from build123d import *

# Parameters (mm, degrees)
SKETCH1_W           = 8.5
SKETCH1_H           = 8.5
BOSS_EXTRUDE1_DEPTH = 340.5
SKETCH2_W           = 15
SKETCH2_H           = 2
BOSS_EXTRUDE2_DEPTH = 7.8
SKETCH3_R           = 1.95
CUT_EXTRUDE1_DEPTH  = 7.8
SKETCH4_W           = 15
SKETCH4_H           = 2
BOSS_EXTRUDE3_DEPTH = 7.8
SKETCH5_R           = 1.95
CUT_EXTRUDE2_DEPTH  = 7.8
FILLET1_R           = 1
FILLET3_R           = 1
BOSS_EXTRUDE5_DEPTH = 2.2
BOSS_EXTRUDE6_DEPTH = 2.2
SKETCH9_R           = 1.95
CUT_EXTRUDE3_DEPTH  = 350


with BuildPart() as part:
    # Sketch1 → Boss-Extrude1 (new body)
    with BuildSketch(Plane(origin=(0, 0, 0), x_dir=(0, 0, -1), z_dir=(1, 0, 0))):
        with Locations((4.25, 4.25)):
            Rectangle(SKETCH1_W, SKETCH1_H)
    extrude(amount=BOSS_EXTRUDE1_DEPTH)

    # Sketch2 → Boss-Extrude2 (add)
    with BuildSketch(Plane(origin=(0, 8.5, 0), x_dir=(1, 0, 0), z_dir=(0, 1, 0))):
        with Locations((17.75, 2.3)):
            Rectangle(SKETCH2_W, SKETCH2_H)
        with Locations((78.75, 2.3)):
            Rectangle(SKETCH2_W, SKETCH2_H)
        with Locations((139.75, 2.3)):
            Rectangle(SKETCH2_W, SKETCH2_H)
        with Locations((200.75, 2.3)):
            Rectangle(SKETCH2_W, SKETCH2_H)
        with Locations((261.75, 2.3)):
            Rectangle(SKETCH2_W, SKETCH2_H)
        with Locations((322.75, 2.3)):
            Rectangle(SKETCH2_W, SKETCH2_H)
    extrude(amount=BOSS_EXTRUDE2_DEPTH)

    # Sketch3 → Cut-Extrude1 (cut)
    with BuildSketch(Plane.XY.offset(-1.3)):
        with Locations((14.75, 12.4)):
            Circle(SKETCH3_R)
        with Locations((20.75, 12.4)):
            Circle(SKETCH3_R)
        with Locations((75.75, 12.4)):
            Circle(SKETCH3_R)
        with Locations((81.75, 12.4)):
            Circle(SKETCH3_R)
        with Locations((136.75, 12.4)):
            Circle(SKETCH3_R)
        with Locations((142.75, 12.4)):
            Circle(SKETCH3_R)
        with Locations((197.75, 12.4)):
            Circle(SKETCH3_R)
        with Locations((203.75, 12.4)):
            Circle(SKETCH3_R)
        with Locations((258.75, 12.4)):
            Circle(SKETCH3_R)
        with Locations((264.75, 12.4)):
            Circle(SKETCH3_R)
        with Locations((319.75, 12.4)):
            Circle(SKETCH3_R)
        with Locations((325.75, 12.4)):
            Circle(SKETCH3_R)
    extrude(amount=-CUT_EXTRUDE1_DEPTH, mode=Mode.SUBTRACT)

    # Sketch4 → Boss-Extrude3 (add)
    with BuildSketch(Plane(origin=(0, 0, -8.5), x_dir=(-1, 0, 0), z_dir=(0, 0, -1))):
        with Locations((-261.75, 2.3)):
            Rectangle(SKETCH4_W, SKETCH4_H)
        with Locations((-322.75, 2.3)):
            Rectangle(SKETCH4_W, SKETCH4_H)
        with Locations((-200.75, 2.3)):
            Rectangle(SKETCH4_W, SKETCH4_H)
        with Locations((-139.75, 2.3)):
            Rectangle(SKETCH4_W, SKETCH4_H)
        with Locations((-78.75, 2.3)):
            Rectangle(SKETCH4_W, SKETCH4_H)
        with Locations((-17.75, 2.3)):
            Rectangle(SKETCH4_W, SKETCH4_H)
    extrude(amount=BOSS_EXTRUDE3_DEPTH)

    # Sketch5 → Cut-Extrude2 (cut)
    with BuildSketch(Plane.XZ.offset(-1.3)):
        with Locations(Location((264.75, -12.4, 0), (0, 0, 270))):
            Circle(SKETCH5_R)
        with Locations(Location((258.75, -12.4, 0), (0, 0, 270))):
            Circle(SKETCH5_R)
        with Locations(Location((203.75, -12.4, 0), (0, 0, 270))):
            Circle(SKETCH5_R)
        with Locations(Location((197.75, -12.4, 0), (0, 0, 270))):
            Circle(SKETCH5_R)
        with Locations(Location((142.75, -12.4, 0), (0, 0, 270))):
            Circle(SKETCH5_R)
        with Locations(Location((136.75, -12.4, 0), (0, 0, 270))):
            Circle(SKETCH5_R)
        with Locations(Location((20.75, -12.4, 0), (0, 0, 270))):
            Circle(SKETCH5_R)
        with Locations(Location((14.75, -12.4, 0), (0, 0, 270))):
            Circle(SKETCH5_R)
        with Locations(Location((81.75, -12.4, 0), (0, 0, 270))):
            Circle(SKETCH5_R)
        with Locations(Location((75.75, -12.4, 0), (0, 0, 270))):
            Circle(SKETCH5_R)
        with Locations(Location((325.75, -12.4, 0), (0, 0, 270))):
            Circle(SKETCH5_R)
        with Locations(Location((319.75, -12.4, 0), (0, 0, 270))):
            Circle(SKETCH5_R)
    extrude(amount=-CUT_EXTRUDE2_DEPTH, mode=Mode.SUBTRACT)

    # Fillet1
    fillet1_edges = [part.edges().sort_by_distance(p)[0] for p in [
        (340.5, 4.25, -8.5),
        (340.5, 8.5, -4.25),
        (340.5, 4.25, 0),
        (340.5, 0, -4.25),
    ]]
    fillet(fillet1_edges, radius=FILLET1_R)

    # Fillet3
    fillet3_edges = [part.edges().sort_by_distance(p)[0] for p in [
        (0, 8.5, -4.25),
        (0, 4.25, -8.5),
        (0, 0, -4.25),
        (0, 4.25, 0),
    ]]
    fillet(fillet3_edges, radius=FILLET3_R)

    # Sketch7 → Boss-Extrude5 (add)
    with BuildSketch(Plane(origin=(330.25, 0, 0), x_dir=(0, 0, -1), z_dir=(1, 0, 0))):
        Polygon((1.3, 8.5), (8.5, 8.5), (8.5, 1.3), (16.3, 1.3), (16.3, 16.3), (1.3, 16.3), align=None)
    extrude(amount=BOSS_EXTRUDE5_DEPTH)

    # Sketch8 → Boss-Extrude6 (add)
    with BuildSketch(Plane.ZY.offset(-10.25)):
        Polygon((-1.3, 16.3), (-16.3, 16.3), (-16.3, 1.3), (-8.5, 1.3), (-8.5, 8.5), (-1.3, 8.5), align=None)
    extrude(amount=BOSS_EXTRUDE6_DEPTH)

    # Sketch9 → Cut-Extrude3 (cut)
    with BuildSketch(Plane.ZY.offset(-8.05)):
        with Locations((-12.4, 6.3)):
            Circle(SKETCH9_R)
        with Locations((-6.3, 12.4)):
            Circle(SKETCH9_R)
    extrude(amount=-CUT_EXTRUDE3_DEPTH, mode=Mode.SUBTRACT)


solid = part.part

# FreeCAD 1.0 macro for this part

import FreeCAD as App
import Part
import Sketcher
from FreeCAD import Vector


def edges_at(feature, points):
    """Names of the edges that pass closest to the given points."""
    edges = feature.Shape.Edges
    near = lambda p: min(range(len(edges)), key=lambda i: edges[i].distToShape(Part.Vertex(*p))[0])
    return sorted({f"Edge{near(p) + 1}" for p in points})


def add_polygon(sketch, points):
    """Adds a closed chain of lines whose ends are joined by coincident constraints."""
    first, n = sketch.GeometryCount, len(points)
    for a, b in zip(points, points[1:] + points[:1]):
        sketch.addGeometry(Part.LineSegment(App.Vector(*a, 0), App.Vector(*b, 0)), False)
    for i in range(n):
        sketch.addConstraint(Sketcher.Constraint("Coincident", first + i, 2, first + (i + 1) % n, 1))

doc = App.newDocument("Part")
body = doc.addObject("PartDesign::Body", "Body")

# Sketch on YZ plane
sketch1 = body.newObject("Sketcher::SketchObject", "Sketch")
sketch1.AttachmentSupport = (doc.getObject("YZ_Plane"), [""])
sketch1.MapMode = "FlatFace"
add_polygon(sketch1, [(8, 0), (0, 0), (0, -8), (8, -8)])  # lines 0-3
sketch1.addConstraint([
    Sketcher.Constraint("Horizontal", 0),
    Sketcher.Constraint("Vertical", 1),
    Sketcher.Constraint("Horizontal", 2),
    Sketcher.Constraint("Vertical", 3),
    Sketcher.Constraint("Coincident", 0, 2, -1, 1),
    Sketcher.Constraint("Equal", 2, 1),
    Sketcher.Constraint("DistanceX", 0, 2, 0, 1, 8.5),
])
pad1 = body.newObject("PartDesign::Pad", "Pad")
pad1.Profile = sketch1
pad1.Length = 340.5

# Sketch on XZ plane
sketch2 = body.newObject("Sketcher::SketchObject", "Sketch001")
sketch2.AttachmentSupport = (doc.getObject("XZ_Plane"), [""])
sketch2.MapMode = "FlatFace"
sketch2.AttachmentOffset = App.Placement(Vector(0, 0, -8.5), App.Rotation())
add_polygon(sketch2, [(10.2, -3.3), (10.2, -1.3), (25.2, -1.3), (25.2, -3.3)])  # lines 0-3
add_polygon(sketch2, [(71.2, -3.3), (71.2, -1.3), (86.2, -1.3), (86.2, -3.3)])  # lines 4-7
add_polygon(sketch2, [(132.2, -3.3), (132.2, -1.3), (147.2, -1.3), (147.2, -3.3)])  # lines 8-11
add_polygon(sketch2, [(193.2, -3.3), (193.2, -1.3), (208.2, -1.3), (208.2, -3.3)])  # lines 12-15
add_polygon(sketch2, [(254.2, -3.3), (254.2, -1.3), (269.2, -1.3), (269.2, -3.3)])  # lines 16-19
add_polygon(sketch2, [(315.2, -3.3), (315.2, -1.3), (330.2, -1.3), (330.2, -3.3)])  # lines 20-23
sketch2.addConstraint([
    Sketcher.Constraint("Vertical", 0),
    Sketcher.Constraint("Horizontal", 1),
    Sketcher.Constraint("Vertical", 2),
    Sketcher.Constraint("Horizontal", 3),
    Sketcher.Constraint("Vertical", 4),
    Sketcher.Constraint("Horizontal", 5),
    Sketcher.Constraint("Vertical", 6),
    Sketcher.Constraint("Horizontal", 7),
    Sketcher.Constraint("Vertical", 8),
    Sketcher.Constraint("Horizontal", 9),
    Sketcher.Constraint("Vertical", 10),
    Sketcher.Constraint("Horizontal", 11),
    Sketcher.Constraint("Vertical", 12),
    Sketcher.Constraint("Horizontal", 13),
    Sketcher.Constraint("Vertical", 14),
    Sketcher.Constraint("Horizontal", 15),
    Sketcher.Constraint("Vertical", 16),
    Sketcher.Constraint("Horizontal", 17),
    Sketcher.Constraint("Vertical", 18),
    Sketcher.Constraint("Horizontal", 19),
    Sketcher.Constraint("Vertical", 20),
    Sketcher.Constraint("Horizontal", 21),
    Sketcher.Constraint("Vertical", 22),
    Sketcher.Constraint("Horizontal", 23),
    Sketcher.Constraint("Horizontal", 1, 2, 4, 2),
    Sketcher.Constraint("Horizontal", 3, 2, 6, 2),
    Sketcher.Constraint("Horizontal", 5, 2, 8, 2),
    Sketcher.Constraint("Horizontal", 7, 2, 10, 2),
    Sketcher.Constraint("Horizontal", 9, 2, 12, 2),
    Sketcher.Constraint("Horizontal", 11, 2, 14, 2),
    Sketcher.Constraint("Horizontal", 13, 2, 16, 2),
    Sketcher.Constraint("Horizontal", 15, 2, 18, 2),
    Sketcher.Constraint("Horizontal", 17, 2, 20, 2),
    Sketcher.Constraint("Horizontal", 19, 2, 22, 2),
    Sketcher.Constraint("Equal", 3, 5),
    Sketcher.Constraint("Equal", 7, 9),
    Sketcher.Constraint("Equal", 11, 13),
    Sketcher.Constraint("Equal", 15, 17),
    Sketcher.Constraint("Equal", 19, 21),
    Sketcher.Constraint("DistanceX", 1, 1, 1, 2, 15.0),
    Sketcher.Constraint("DistanceY", 0, 1, 0, 2, 2.0),
    Sketcher.Constraint("DistanceX", 1, 2, 4, 2, 46.0),
    Sketcher.Constraint("DistanceX", 5, 2, 8, 2, 46.0),
    Sketcher.Constraint("DistanceX", 9, 2, 12, 2, 46.0),
    Sketcher.Constraint("DistanceX", 13, 2, 16, 2, 46.0),
    Sketcher.Constraint("DistanceX", 17, 2, 20, 2, 46.0),
    Sketcher.Constraint("DistanceY", 0, 2, -1, 1, 1.3),
    Sketcher.Constraint("DistanceX", -1, 1, 0, 2, 10.25),
])
pad2 = body.newObject("PartDesign::Pad", "Pad001")
pad2.Profile = sketch2
pad2.Length = 7.8
pad2.Reversed = True

# Sketch on XY plane
sketch3 = body.newObject("Sketcher::SketchObject", "Sketch002")
sketch3.AttachmentSupport = (doc.getObject("XY_Plane"), [""])
sketch3.MapMode = "FlatFace"
sketch3.AttachmentOffset = App.Placement(Vector(0, 0, -1.3), App.Rotation())
sketch3.addGeometry([
    Part.Circle(Vector(14.8, 12.4, 0), Vector(0, 0, 1), 1.9),  # 0
    Part.Circle(Vector(20.8, 12.4, 0), Vector(0, 0, 1), 1.9),  # 1
    Part.Circle(Vector(75.8, 12.4, 0), Vector(0, 0, 1), 1.9),  # 2
    Part.Circle(Vector(81.8, 12.4, 0), Vector(0, 0, 1), 1.9),  # 3
    Part.Circle(Vector(136.8, 12.4, 0), Vector(0, 0, 1), 1.9),  # 4
    Part.Circle(Vector(142.8, 12.4, 0), Vector(0, 0, 1), 1.9),  # 5
    Part.Circle(Vector(197.8, 12.4, 0), Vector(0, 0, 1), 1.9),  # 6
    Part.Circle(Vector(203.8, 12.4, 0), Vector(0, 0, 1), 1.9),  # 7
    Part.Circle(Vector(258.8, 12.4, 0), Vector(0, 0, 1), 1.9),  # 8
    Part.Circle(Vector(264.8, 12.4, 0), Vector(0, 0, 1), 1.9),  # 9
    Part.Circle(Vector(319.8, 12.4, 0), Vector(0, 0, 1), 1.9),  # 10
    Part.Circle(Vector(325.8, 12.4, 0), Vector(0, 0, 1), 1.9),  # 11
], False)
sketch3.addConstraint([
    Sketcher.Constraint("Equal", 0, 1),
    Sketcher.Constraint("Equal", 1, 2),
    Sketcher.Constraint("Equal", 2, 3),
    Sketcher.Constraint("Equal", 3, 4),
    Sketcher.Constraint("Equal", 4, 5),
    Sketcher.Constraint("Equal", 5, 6),
    Sketcher.Constraint("Equal", 6, 7),
    Sketcher.Constraint("Equal", 7, 8),
    Sketcher.Constraint("Equal", 8, 9),
    Sketcher.Constraint("Equal", 9, 10),
    Sketcher.Constraint("Equal", 10, 11),
    Sketcher.Constraint("Horizontal", 0, 3, 1, 3),
    Sketcher.Constraint("Horizontal", 1, 3, 2, 3),
    Sketcher.Constraint("Horizontal", 2, 3, 3, 3),
    Sketcher.Constraint("Horizontal", 3, 3, 4, 3),
    Sketcher.Constraint("Horizontal", 4, 3, 5, 3),
    Sketcher.Constraint("Horizontal", 5, 3, 6, 3),
    Sketcher.Constraint("Horizontal", 6, 3, 7, 3),
    Sketcher.Constraint("Horizontal", 7, 3, 8, 3),
    Sketcher.Constraint("Horizontal", 8, 3, 9, 3),
    Sketcher.Constraint("Horizontal", 9, 3, 10, 3),
    Sketcher.Constraint("Horizontal", 10, 3, 11, 3),
    Sketcher.Constraint("Diameter", 0, 3.9),
    Sketcher.Constraint("DistanceX", 0, 3, 1, 3, 6.0),
    Sketcher.Constraint("DistanceX", 1, 3, 2, 3, 55.0),
    Sketcher.Constraint("DistanceX", 2, 3, 3, 3, 6.0),
    Sketcher.Constraint("DistanceX", 3, 3, 4, 3, 55.0),
    Sketcher.Constraint("DistanceX", 4, 3, 5, 3, 6.0),
    Sketcher.Constraint("DistanceX", 5, 3, 6, 3, 55.0),
    Sketcher.Constraint("DistanceX", 6, 3, 7, 3, 6.0),
    Sketcher.Constraint("DistanceX", 7, 3, 8, 3, 55.0),
    Sketcher.Constraint("DistanceX", 8, 3, 9, 3, 6.0),
    Sketcher.Constraint("DistanceX", 9, 3, 10, 3, 55.0),
    Sketcher.Constraint("DistanceX", 10, 3, 11, 3, 6.0),
    Sketcher.Constraint("DistanceY", -1, 1, 0, 3, 12.4),
    Sketcher.Constraint("DistanceX", -1, 1, 0, 3, 14.75),
])
pocket1 = body.newObject("PartDesign::Pocket", "Pocket")
pocket1.Profile = sketch3
pocket1.Length = 7.8

# Sketch on XY plane
sketch4 = body.newObject("Sketcher::SketchObject", "Sketch003")
sketch4.AttachmentSupport = (doc.getObject("XY_Plane"), [""])
sketch4.MapMode = "FlatFace"
sketch4.AttachmentOffset = App.Placement(Vector(0, 0, -8.5), App.Rotation())
add_polygon(sketch4, [(269.2, 3.3), (269.2, 1.3), (254.2, 1.3), (254.2, 3.3)])  # lines 0-3
add_polygon(sketch4, [(330.2, 3.3), (330.2, 1.3), (315.2, 1.3), (315.2, 3.3)])  # lines 4-7
add_polygon(sketch4, [(208.2, 3.3), (208.2, 1.3), (193.2, 1.3), (193.2, 3.3)])  # lines 8-11
add_polygon(sketch4, [(147.2, 3.3), (147.2, 1.3), (132.2, 1.3), (132.2, 3.3)])  # lines 12-15
add_polygon(sketch4, [(86.2, 3.3), (86.2, 1.3), (71.2, 1.3), (71.2, 3.3)])  # lines 16-19
add_polygon(sketch4, [(25.2, 3.3), (25.2, 1.3), (10.2, 1.3), (10.2, 3.3)])  # lines 20-23
sketch4.addConstraint([
    Sketcher.Constraint("Vertical", 0),
    Sketcher.Constraint("Horizontal", 1),
    Sketcher.Constraint("Vertical", 2),
    Sketcher.Constraint("Horizontal", 3),
    Sketcher.Constraint("Vertical", 4),
    Sketcher.Constraint("Horizontal", 5),
    Sketcher.Constraint("Vertical", 6),
    Sketcher.Constraint("Horizontal", 7),
    Sketcher.Constraint("Vertical", 8),
    Sketcher.Constraint("Horizontal", 9),
    Sketcher.Constraint("Vertical", 10),
    Sketcher.Constraint("Horizontal", 11),
    Sketcher.Constraint("Vertical", 12),
    Sketcher.Constraint("Horizontal", 13),
    Sketcher.Constraint("Vertical", 14),
    Sketcher.Constraint("Horizontal", 15),
    Sketcher.Constraint("Vertical", 16),
    Sketcher.Constraint("Horizontal", 17),
    Sketcher.Constraint("Vertical", 18),
    Sketcher.Constraint("Horizontal", 19),
    Sketcher.Constraint("Vertical", 20),
    Sketcher.Constraint("Horizontal", 21),
    Sketcher.Constraint("Vertical", 22),
    Sketcher.Constraint("Horizontal", 23),
    Sketcher.Constraint("Horizontal", 1, 2, 4, 2),
    Sketcher.Constraint("Horizontal", 3, 2, 6, 2),
    Sketcher.Constraint("Horizontal", 5, 2, 8, 2),
    Sketcher.Constraint("Horizontal", 7, 2, 10, 2),
    Sketcher.Constraint("Horizontal", 9, 2, 12, 2),
    Sketcher.Constraint("Horizontal", 11, 2, 14, 2),
    Sketcher.Constraint("Horizontal", 13, 2, 16, 2),
    Sketcher.Constraint("Horizontal", 15, 2, 18, 2),
    Sketcher.Constraint("Horizontal", 17, 2, 20, 2),
    Sketcher.Constraint("Horizontal", 19, 2, 22, 2),
    Sketcher.Constraint("Equal", 3, 5),
    Sketcher.Constraint("Equal", 7, 9),
    Sketcher.Constraint("Equal", 11, 13),
    Sketcher.Constraint("Equal", 15, 17),
    Sketcher.Constraint("Equal", 19, 21),
    Sketcher.Constraint("DistanceX", 1, 2, 1, 1, 15.0),
    Sketcher.Constraint("DistanceY", 0, 2, 0, 1, 2.0),
    Sketcher.Constraint("DistanceX", 0, 2, 4, 2, 61.0),
    Sketcher.Constraint("DistanceX", 8, 2, 1, 2, 46.0),
    Sketcher.Constraint("DistanceX", 12, 2, 9, 2, 46.0),
    Sketcher.Constraint("DistanceX", 16, 2, 13, 2, 46.0),
    Sketcher.Constraint("DistanceX", 20, 2, 17, 2, 46.0),
    Sketcher.Constraint("DistanceY", -1, 1, 0, 2, 1.3),
    Sketcher.Constraint("DistanceX", -1, 1, 0, 2, 269.25),
])
pad3 = body.newObject("PartDesign::Pad", "Pad002")
pad3.Profile = sketch4
pad3.Length = 7.8
pad3.Reversed = True

# Sketch on XZ plane
sketch5 = body.newObject("Sketcher::SketchObject", "Sketch004")
sketch5.AttachmentSupport = (doc.getObject("XZ_Plane"), [""])
sketch5.MapMode = "FlatFace"
sketch5.AttachmentOffset = App.Placement(Vector(0, 0, -1.3), App.Rotation())
sketch5.addGeometry([
    Part.Circle(Vector(264.8, -12.4, 0), Vector(0, 0, 1), 1.9),  # 0
    Part.Circle(Vector(258.8, -12.4, 0), Vector(0, 0, 1), 1.9),  # 1
    Part.Circle(Vector(203.8, -12.4, 0), Vector(0, 0, 1), 1.9),  # 2
    Part.Circle(Vector(197.8, -12.4, 0), Vector(0, 0, 1), 1.9),  # 3
    Part.Circle(Vector(142.8, -12.4, 0), Vector(0, 0, 1), 1.9),  # 4
    Part.Circle(Vector(136.8, -12.4, 0), Vector(0, 0, 1), 1.9),  # 5
    Part.Circle(Vector(20.8, -12.4, 0), Vector(0, 0, 1), 1.9),  # 6
    Part.Circle(Vector(14.8, -12.4, 0), Vector(0, 0, 1), 1.9),  # 7
    Part.Circle(Vector(81.8, -12.4, 0), Vector(0, 0, 1), 1.9),  # 8
    Part.Circle(Vector(75.8, -12.4, 0), Vector(0, 0, 1), 1.9),  # 9
    Part.Circle(Vector(325.8, -12.4, 0), Vector(0, 0, 1), 1.9),  # 10
    Part.Circle(Vector(319.8, -12.4, 0), Vector(0, 0, 1), 1.9),  # 11
], False)
sketch5.addConstraint([
    Sketcher.Constraint("Equal", 0, 1),
    Sketcher.Constraint("Equal", 1, 2),
    Sketcher.Constraint("Equal", 2, 3),
    Sketcher.Constraint("Equal", 3, 4),
    Sketcher.Constraint("Equal", 4, 5),
    Sketcher.Constraint("Equal", 5, 6),
    Sketcher.Constraint("Equal", 6, 7),
    Sketcher.Constraint("Equal", 7, 8),
    Sketcher.Constraint("Equal", 8, 9),
    Sketcher.Constraint("Equal", 9, 10),
    Sketcher.Constraint("Equal", 10, 11),
    Sketcher.Constraint("Horizontal", 0, 3, 1, 3),
    Sketcher.Constraint("Horizontal", 1, 3, 2, 3),
    Sketcher.Constraint("Horizontal", 2, 3, 3, 3),
    Sketcher.Constraint("Horizontal", 3, 3, 4, 3),
    Sketcher.Constraint("Horizontal", 4, 3, 5, 3),
    Sketcher.Constraint("Horizontal", 5, 3, 6, 3),
    Sketcher.Constraint("Horizontal", 6, 3, 7, 3),
    Sketcher.Constraint("Horizontal", 7, 3, 8, 3),
    Sketcher.Constraint("Horizontal", 8, 3, 9, 3),
    Sketcher.Constraint("Horizontal", 9, 3, 10, 3),
    Sketcher.Constraint("Horizontal", 10, 3, 11, 3),
    Sketcher.Constraint("Diameter", 0, 3.9),
    Sketcher.Constraint("DistanceX", 1, 3, 0, 3, 6.0),
    Sketcher.Constraint("DistanceX", 2, 3, 1, 3, 55.0),
    Sketcher.Constraint("DistanceX", 3, 3, 2, 3, 6.0),
    Sketcher.Constraint("DistanceX", 4, 3, 3, 3, 55.0),
    Sketcher.Constraint("DistanceX", 5, 3, 4, 3, 6.0),
    Sketcher.Constraint("DistanceX", 6, 3, 5, 3, 116.0),
    Sketcher.Constraint("DistanceX", 7, 3, 6, 3, 6.0),
    Sketcher.Constraint("DistanceX", 8, 3, 5, 3, 55.0),
    Sketcher.Constraint("DistanceX", 9, 3, 8, 3, 6.0),
    Sketcher.Constraint("DistanceX", 0, 3, 10, 3, 61.0),
    Sketcher.Constraint("DistanceX", 11, 3, 10, 3, 6.0),
    Sketcher.Constraint("DistanceY", 0, 3, -1, 1, 12.4),
    Sketcher.Constraint("DistanceX", -1, 1, 0, 3, 264.75),
])
pocket2 = body.newObject("PartDesign::Pocket", "Pocket001")
pocket2.Profile = sketch5
pocket2.Length = 7.8
doc.recompute()

fillet = body.newObject("PartDesign::Fillet", "Fillet")
fillet.Base = (pocket2, edges_at(pocket2, [
    (340.5, 4.25, -8.5),
    (340.5, 8.5, -4.25),
    (340.5, 4.25, 0),
    (340.5, 0, -4.25),
]))
fillet.Radius = 1
doc.recompute()

fillet2 = body.newObject("PartDesign::Fillet", "Fillet001")
fillet2.Base = (fillet, edges_at(fillet, [
    (0, 8.5, -4.25),
    (0, 4.25, -8.5),
    (0, 0, -4.25),
    (0, 4.25, 0),
]))
fillet2.Radius = 1

# Sketch on YZ plane
sketch6 = body.newObject("Sketcher::SketchObject", "Sketch005")
sketch6.AttachmentSupport = (doc.getObject("YZ_Plane"), [""])
sketch6.MapMode = "FlatFace"
sketch6.AttachmentOffset = App.Placement(Vector(0, 0, 330.25), App.Rotation())
add_polygon(sketch6, [(8, -1), (8, -8), (1, -8), (1, -16), (16, -16), (16, -1)])  # lines 0-5
sketch6.addConstraint([
    Sketcher.Constraint("Vertical", 0),
    Sketcher.Constraint("Horizontal", 1),
    Sketcher.Constraint("Vertical", 2),
    Sketcher.Constraint("Horizontal", 3),
    Sketcher.Constraint("Vertical", 4),
    Sketcher.Constraint("Horizontal", 5),
    Sketcher.Constraint("Equal", 1, 0),
    Sketcher.Constraint("Equal", 5, 2),
    Sketcher.Constraint("DistanceX", 3, 1, 3, 2, 15.0),
    Sketcher.Constraint("DistanceX", 1, 2, 1, 1, 7.2),
    Sketcher.Constraint("DistanceX", -1, 1, 0, 2, 8.5),
    Sketcher.Constraint("DistanceY", 0, 2, -1, 1, 8.5),
])
pad4 = body.newObject("PartDesign::Pad", "Pad003")
pad4.Profile = sketch6
pad4.Length = 2.2

# Sketch on YZ plane
sketch7 = body.newObject("Sketcher::SketchObject", "Sketch006")
sketch7.AttachmentSupport = (doc.getObject("YZ_Plane"), [""])
sketch7.MapMode = "FlatFace"
sketch7.AttachmentOffset = App.Placement(Vector(0, 0, 10.25), App.Rotation())
add_polygon(sketch7, [(16, -1), (16, -16), (1, -16), (1, -8), (8, -8), (8, -1)])  # lines 0-5
sketch7.addConstraint([
    Sketcher.Constraint("Vertical", 0),
    Sketcher.Constraint("Horizontal", 1),
    Sketcher.Constraint("Vertical", 2),
    Sketcher.Constraint("Horizontal", 3),
    Sketcher.Constraint("Vertical", 4),
    Sketcher.Constraint("Horizontal", 5),
    Sketcher.Constraint("Equal", 1, 0),
    Sketcher.Constraint("Equal", 5, 2),
    Sketcher.Constraint("DistanceX", 1, 2, 1, 1, 15.0),
    Sketcher.Constraint("DistanceX", 3, 1, 3, 2, 7.2),
    Sketcher.Constraint("DistanceX", -1, 1, 0, 2, 16.3),
    Sketcher.Constraint("DistanceY", 0, 2, -1, 1, 16.3),
])
pad5 = body.newObject("PartDesign::Pad", "Pad004")
pad5.Profile = sketch7
pad5.Length = 2.2
pad5.Reversed = True

# Sketch on YZ plane
sketch8 = body.newObject("Sketcher::SketchObject", "Sketch007")
sketch8.AttachmentSupport = (doc.getObject("YZ_Plane"), [""])
sketch8.MapMode = "FlatFace"
sketch8.AttachmentOffset = App.Placement(Vector(0, 0, 8.05), App.Rotation())
sketch8.addGeometry([
    Part.Circle(Vector(6.3, -12.4, 0), Vector(0, 0, 1), 1.9),
    Part.Circle(Vector(12.4, -6.3, 0), Vector(0, 0, 1), 1.9),
], False)
sketch8.addConstraint([
    Sketcher.Constraint("Equal", 0, 1),
    Sketcher.Constraint("Diameter", 0, 3.9),
    Sketcher.Constraint("DistanceX", -1, 1, 0, 3, 6.3),
    Sketcher.Constraint("DistanceY", 0, 3, -1, 1, 12.4),
    Sketcher.Constraint("DistanceX", -1, 1, 1, 3, 12.4),
    Sketcher.Constraint("DistanceY", 1, 3, -1, 1, 6.3),
])
pocket3 = body.newObject("PartDesign::Pocket", "Pocket002")
pocket3.Profile = sketch8
pocket3.Length = 350
pocket3.Reversed = True

doc.recompute()
